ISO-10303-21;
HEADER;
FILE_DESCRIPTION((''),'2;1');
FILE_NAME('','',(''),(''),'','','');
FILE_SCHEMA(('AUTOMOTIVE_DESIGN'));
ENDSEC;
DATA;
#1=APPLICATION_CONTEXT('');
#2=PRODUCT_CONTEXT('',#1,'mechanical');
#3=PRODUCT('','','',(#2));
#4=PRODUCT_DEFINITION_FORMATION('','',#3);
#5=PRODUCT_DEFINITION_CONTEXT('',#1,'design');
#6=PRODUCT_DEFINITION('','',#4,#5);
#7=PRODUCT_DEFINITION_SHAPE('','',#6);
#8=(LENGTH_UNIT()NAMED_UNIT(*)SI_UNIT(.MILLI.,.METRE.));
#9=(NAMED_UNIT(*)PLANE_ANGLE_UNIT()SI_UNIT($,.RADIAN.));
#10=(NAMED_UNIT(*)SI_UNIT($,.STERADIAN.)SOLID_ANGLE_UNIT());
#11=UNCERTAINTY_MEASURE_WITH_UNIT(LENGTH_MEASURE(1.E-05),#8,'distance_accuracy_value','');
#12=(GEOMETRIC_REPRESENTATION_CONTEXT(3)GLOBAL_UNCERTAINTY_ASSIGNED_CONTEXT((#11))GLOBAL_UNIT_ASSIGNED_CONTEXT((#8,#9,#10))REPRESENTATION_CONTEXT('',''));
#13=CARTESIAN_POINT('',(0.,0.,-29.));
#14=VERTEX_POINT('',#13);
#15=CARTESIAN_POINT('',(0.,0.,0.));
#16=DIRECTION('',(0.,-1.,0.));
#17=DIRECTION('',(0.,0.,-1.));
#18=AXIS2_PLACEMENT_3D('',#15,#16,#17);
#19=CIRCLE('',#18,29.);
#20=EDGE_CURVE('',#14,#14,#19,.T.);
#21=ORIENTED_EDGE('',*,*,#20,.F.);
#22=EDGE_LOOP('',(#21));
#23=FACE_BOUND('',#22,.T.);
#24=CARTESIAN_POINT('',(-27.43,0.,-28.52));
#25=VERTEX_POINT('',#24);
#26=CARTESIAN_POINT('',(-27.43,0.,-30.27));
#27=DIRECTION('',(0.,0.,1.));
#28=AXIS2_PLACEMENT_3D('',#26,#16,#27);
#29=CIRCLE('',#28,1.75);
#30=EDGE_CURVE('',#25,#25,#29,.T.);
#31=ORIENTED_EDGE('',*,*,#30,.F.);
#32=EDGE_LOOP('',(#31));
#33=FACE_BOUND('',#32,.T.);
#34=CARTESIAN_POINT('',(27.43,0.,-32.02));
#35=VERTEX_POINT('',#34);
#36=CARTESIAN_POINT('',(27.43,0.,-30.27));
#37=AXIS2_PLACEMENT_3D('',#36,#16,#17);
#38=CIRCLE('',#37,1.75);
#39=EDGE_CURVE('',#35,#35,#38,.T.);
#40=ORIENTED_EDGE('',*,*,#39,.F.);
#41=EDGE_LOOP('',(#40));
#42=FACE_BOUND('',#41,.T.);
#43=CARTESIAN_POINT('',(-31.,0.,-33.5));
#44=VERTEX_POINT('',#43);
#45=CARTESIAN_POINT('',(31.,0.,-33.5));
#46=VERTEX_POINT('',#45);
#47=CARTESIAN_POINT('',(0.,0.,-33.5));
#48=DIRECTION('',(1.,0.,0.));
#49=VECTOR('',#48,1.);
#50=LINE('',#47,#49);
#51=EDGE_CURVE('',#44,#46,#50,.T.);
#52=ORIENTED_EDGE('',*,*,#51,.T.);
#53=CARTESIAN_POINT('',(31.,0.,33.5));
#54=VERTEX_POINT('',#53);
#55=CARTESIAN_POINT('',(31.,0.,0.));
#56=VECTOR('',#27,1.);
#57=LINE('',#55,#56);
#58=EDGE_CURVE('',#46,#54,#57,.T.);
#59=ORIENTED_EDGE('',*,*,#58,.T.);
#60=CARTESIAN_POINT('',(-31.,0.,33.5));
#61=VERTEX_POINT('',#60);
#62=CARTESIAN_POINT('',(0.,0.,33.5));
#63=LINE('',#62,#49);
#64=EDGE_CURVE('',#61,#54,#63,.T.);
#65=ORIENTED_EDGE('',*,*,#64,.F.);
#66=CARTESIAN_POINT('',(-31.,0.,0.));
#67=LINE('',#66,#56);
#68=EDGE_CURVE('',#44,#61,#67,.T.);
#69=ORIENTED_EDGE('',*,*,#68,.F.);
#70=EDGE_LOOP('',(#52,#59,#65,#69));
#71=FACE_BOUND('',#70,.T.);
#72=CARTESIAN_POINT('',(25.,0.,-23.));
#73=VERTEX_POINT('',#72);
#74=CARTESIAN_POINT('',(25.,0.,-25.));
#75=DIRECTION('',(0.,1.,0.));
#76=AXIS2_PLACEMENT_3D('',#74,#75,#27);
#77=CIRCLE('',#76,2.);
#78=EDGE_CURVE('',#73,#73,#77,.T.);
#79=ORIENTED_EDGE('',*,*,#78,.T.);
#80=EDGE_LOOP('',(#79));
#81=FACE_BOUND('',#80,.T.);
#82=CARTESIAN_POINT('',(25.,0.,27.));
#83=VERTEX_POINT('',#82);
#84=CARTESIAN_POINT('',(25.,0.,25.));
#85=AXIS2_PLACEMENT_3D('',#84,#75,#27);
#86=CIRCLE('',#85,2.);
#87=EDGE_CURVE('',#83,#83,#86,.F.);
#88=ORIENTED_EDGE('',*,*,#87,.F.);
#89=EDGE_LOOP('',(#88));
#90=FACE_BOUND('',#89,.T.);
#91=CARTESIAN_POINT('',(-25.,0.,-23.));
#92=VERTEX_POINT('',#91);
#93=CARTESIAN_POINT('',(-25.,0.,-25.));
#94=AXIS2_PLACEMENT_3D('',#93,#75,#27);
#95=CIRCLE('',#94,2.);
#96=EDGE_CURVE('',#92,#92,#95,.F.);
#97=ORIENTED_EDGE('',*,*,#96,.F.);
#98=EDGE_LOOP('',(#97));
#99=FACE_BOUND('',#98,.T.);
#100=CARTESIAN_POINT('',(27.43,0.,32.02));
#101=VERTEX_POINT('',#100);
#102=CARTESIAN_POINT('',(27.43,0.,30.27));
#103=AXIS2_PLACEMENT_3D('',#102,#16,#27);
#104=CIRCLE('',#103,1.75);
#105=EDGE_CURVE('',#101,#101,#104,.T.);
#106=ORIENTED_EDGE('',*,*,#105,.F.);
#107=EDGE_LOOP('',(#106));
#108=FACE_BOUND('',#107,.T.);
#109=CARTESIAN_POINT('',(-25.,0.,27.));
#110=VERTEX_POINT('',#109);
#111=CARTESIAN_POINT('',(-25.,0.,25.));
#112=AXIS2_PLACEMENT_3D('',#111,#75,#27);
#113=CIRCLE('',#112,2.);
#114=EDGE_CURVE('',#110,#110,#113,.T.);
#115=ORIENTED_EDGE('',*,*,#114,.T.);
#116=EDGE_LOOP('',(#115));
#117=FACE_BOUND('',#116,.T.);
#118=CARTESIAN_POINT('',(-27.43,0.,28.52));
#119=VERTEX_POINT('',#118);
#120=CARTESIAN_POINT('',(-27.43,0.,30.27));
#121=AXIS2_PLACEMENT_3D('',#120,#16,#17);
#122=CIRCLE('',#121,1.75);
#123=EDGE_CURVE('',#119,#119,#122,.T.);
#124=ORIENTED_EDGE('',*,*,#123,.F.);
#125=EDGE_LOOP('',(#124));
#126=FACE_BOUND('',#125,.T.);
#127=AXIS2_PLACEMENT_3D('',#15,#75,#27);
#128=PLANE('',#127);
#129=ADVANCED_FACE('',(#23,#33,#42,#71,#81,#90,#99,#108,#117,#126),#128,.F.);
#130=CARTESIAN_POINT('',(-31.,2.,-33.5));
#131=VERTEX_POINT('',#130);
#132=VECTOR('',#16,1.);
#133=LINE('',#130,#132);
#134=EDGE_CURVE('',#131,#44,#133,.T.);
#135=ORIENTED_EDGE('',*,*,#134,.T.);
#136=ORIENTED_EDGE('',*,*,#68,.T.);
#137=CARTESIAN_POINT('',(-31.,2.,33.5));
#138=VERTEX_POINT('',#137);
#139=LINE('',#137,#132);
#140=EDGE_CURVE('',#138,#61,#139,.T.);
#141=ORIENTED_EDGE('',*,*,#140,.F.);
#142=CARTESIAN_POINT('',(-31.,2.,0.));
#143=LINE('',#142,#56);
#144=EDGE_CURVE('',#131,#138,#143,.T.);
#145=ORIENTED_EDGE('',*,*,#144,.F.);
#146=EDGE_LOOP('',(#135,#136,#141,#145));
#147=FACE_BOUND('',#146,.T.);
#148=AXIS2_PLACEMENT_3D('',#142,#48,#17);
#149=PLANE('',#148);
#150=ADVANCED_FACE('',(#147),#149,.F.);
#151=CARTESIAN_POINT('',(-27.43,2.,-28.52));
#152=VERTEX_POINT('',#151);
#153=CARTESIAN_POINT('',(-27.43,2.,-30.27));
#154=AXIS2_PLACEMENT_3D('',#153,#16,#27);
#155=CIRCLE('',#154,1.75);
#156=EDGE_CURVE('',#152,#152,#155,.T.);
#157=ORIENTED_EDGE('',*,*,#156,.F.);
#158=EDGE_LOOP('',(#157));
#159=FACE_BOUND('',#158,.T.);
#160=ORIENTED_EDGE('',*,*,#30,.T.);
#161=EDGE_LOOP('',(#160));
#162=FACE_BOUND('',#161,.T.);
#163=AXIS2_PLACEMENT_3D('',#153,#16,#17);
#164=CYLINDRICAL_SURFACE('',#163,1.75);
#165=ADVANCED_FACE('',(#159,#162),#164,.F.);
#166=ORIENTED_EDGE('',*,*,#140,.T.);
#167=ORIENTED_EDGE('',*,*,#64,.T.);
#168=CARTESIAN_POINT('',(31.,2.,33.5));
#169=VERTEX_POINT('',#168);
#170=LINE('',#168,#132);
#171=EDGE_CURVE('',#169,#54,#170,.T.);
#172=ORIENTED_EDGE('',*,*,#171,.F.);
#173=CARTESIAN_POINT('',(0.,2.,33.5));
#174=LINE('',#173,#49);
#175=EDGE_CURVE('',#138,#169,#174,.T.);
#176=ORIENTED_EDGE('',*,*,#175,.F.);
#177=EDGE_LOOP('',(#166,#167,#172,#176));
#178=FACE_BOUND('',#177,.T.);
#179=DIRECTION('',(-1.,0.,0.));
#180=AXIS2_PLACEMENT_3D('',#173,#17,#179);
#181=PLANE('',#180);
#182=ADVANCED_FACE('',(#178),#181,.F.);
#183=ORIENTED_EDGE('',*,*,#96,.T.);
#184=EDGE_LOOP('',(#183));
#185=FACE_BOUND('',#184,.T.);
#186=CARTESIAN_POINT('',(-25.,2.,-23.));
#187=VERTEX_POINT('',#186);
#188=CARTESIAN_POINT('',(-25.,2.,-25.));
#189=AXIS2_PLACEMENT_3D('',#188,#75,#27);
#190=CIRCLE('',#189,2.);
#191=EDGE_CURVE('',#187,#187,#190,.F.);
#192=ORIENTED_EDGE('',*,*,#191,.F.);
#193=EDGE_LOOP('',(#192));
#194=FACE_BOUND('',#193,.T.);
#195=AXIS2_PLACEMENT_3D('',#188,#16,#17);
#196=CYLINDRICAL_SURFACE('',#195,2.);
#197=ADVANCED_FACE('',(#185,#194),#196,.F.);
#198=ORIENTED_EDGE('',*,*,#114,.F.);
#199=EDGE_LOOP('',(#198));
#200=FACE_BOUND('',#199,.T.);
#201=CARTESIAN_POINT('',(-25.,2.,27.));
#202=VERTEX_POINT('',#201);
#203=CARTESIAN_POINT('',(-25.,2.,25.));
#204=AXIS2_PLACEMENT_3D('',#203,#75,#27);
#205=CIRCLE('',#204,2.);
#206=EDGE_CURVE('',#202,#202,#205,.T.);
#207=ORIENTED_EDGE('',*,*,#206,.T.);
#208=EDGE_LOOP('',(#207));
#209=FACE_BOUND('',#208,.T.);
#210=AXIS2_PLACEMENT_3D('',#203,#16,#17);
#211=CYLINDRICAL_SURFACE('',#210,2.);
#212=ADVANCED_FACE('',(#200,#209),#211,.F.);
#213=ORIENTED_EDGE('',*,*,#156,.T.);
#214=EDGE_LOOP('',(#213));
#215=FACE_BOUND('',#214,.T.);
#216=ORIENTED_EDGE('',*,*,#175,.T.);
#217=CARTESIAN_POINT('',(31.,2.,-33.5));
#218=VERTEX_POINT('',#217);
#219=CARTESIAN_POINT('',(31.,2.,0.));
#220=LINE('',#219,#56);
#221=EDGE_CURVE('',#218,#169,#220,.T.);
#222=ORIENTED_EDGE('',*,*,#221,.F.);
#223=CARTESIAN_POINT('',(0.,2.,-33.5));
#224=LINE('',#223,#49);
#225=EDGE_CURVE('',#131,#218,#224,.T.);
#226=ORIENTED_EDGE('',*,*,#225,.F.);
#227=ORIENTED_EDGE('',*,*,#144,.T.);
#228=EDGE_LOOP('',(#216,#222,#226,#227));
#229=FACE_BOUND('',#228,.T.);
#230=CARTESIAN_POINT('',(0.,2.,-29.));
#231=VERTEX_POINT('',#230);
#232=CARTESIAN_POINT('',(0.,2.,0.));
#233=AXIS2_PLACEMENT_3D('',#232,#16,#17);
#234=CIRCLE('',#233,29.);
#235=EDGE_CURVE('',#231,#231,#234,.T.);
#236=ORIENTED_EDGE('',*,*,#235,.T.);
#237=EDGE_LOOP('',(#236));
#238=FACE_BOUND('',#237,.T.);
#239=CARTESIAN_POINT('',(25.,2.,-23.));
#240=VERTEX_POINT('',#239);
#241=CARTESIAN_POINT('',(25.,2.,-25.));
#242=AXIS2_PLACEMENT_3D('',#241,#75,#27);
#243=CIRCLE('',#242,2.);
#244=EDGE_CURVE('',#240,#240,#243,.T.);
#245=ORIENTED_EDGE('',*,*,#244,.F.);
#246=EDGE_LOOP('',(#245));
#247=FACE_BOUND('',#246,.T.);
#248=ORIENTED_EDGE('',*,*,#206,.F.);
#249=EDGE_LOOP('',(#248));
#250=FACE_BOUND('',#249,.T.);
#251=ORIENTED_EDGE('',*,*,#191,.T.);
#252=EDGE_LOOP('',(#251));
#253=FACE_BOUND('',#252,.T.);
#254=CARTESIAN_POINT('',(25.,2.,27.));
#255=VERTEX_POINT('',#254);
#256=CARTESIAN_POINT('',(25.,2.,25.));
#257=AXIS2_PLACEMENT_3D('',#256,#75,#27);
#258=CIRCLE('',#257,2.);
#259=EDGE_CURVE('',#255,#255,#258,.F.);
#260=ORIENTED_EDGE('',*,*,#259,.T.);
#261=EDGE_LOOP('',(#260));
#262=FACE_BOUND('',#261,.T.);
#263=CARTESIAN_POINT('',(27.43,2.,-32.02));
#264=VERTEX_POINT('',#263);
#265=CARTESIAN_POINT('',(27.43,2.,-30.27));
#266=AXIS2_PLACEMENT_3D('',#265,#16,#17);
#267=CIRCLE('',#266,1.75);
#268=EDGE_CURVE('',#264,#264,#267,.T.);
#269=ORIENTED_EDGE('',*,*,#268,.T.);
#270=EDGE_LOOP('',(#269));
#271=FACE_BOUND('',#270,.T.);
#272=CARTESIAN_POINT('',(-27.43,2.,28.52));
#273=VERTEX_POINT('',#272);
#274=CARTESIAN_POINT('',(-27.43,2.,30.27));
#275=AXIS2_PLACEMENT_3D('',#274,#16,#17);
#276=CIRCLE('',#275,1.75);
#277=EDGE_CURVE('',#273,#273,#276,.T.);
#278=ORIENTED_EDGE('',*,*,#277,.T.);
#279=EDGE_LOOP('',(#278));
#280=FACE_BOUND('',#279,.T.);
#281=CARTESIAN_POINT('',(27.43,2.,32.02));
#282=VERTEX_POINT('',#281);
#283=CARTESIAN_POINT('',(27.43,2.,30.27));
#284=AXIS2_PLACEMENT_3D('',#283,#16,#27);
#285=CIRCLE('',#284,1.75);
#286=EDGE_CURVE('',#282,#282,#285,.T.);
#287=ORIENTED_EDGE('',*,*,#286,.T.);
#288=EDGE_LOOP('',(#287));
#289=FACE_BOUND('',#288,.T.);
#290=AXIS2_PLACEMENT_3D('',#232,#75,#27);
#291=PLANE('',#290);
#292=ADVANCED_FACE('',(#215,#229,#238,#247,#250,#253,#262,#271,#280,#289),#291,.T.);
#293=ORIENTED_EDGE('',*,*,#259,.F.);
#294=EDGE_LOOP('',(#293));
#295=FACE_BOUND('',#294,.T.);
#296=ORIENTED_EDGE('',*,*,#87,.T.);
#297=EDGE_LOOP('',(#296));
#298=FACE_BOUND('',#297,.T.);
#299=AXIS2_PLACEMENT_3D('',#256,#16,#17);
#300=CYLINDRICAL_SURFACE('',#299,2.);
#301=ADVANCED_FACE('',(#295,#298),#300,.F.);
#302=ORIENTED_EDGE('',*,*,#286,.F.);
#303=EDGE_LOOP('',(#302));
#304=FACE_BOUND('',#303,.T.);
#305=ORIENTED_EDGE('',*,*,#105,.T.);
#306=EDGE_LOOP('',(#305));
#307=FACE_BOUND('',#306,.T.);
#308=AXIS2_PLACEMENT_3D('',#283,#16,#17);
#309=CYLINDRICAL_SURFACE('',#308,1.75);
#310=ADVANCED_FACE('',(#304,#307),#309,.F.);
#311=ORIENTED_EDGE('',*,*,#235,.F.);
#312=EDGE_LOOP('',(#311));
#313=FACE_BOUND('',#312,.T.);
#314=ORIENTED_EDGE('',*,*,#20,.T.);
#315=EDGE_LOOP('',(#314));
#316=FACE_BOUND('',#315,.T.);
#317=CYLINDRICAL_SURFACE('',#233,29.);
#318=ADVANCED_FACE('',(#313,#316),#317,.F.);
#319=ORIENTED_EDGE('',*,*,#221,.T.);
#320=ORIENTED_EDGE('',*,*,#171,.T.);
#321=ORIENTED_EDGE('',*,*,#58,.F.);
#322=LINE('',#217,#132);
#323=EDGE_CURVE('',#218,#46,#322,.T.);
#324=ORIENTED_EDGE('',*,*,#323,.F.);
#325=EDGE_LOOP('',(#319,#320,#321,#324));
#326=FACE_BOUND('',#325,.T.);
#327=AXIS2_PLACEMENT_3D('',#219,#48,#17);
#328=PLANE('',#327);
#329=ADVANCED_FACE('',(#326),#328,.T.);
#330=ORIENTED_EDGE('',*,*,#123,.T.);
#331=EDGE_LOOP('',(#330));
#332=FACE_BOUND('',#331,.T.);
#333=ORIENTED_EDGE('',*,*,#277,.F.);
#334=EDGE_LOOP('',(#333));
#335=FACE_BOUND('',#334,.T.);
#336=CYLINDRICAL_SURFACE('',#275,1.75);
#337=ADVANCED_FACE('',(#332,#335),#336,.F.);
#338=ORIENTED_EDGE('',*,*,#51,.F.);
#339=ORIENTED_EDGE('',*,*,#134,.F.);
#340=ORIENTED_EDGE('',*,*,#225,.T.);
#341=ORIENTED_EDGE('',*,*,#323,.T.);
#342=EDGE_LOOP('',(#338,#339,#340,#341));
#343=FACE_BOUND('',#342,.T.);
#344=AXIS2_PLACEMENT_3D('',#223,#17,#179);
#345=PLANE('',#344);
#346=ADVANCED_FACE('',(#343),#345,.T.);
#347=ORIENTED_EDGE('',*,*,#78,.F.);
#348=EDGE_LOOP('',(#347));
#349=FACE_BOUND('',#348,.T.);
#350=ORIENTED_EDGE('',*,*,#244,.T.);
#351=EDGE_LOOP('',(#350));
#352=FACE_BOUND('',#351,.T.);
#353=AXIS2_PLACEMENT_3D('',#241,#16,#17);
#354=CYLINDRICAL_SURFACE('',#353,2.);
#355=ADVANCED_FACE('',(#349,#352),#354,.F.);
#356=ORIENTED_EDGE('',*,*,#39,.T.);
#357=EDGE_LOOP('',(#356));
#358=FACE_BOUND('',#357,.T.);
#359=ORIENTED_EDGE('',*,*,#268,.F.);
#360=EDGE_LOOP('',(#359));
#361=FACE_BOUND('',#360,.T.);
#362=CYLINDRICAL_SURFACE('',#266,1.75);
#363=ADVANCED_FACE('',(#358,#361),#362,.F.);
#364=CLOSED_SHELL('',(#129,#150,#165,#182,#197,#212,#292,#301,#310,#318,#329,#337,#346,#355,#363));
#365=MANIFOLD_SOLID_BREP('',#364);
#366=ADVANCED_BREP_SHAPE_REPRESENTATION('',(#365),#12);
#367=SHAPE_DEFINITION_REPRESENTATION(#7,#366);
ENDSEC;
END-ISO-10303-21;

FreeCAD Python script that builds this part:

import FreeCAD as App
import Part
import Sketcher

V = App.Vector
Q = App.Units.Quantity


def add_polygon(sketch, points):
    """Adds a closed chain of lines whose ends are joined by coincident constraints."""
    first, n = sketch.GeometryCount, len(points)
    for a, b in zip(points, points[1:] + points[:1]):
        sketch.addGeometry(Part.LineSegment(App.Vector(*a, 0), App.Vector(*b, 0)), False)
    for i in range(n):
        sketch.addConstraint(Sketcher.Constraint("Coincident", first + i, 2, first + (i + 1) % n, 1))

doc = App.newDocument("Part")
body = doc.addObject("PartDesign::Body", "Body")

sketch1 = body.newObject("Sketcher::SketchObject", "Sketch")
sketch1.AttachmentSupport = (doc.getObject("XZ_Plane"), [""])
sketch1.MapMode = "FlatFace"
add_polygon(sketch1, [(-31, -33.5), (-31, 33.5), (31, 33.5), (31, -33.5)])
sketch1.addGeometry(Part.Circle(V(-25, 25, 0), V(0, 0, 1), 2), False)
sketch1.addGeometry(Part.Circle(V(25, 25, 0), V(0, 0, 1), 2), False)
sketch1.addGeometry(Part.Circle(V(-25, -25, 0), V(0, 0, 1), 2), False)
sketch1.addGeometry(Part.Circle(V(25, -25, 0), V(0, 0, 1), 2), False)
sketch1.addConstraint([
    Sketcher.Constraint("Vertical", 0),
    Sketcher.Constraint("Horizontal", 1),
    Sketcher.Constraint("Vertical", 2),
    Sketcher.Constraint("Horizontal", 3),
    Sketcher.Constraint("Equal", 4, 5),
    Sketcher.Constraint("Equal", 5, 6),
    Sketcher.Constraint("Equal", 6, 7),
    Sketcher.Constraint("Symmetric", 5, 3, 6, 3, -1, 1),
    Sketcher.Constraint("Symmetric", 4, 3, 7, 3, -1, 1),
    Sketcher.Constraint("Symmetric", 0, 2, 2, 2, -1, 1),
    Sketcher.Constraint("Symmetric", 4, 3, 5, 3, -2),
    Sketcher.Constraint("Diameter", 4, Q("4 mm")),
    Sketcher.Constraint("DistanceX", 1, 1, 1, 2, Q("62 mm")),
    Sketcher.Constraint("DistanceY", 0, 1, 0, 2, Q("67 mm")),
    Sketcher.Constraint("DistanceX", 4, 3, -1, 1, Q("25 mm")),
    Sketcher.Constraint("DistanceY", -1, 1, 4, 3, Q("25 mm")),
])
pad1 = body.newObject("PartDesign::Pad", "Pad")
pad1.Profile = sketch1
pad1.Length = 2
pad1.Reversed = True

sketch2 = body.newObject("Sketcher::SketchObject", "Sketch001")
sketch2.AttachmentSupport = (doc.getObject("XZ_Plane"), [""])
sketch2.MapMode = "FlatFace"
sketch2.addGeometry(Part.Circle(V(0, 0, 0), V(0, 0, 1), 29), False)
sketch2.addConstraint([
    Sketcher.Constraint("Coincident", 0, 3, -1, 1),
    Sketcher.Constraint("Diameter", 0, Q("58 mm")),
])
pocket1 = body.newObject("PartDesign::Pocket", "Pocket")
pocket1.Profile = sketch2
pocket1.Length = 2

sketch3 = body.newObject("Sketcher::SketchObject", "Sketch002")
sketch3.AttachmentSupport = (doc.getObject("XZ_Plane"), [""])
sketch3.MapMode = "FlatFace"
sketch3.addGeometry([
    Part.Circle(V(-27.4, 30.3, 0), V(0, 0, 1), 1.8),
    Part.Circle(V(-27.4, -30.3, 0), V(0, 0, 1), 1.8),
    Part.Circle(V(27.4, -30.3, 0), V(0, 0, 1), 1.8),
    Part.Circle(V(27.4, 30.3, 0), V(0, 0, 1), 1.8),
], False)
sketch3.addConstraint([
    Sketcher.Constraint("Equal", 0, 1),
    Sketcher.Constraint("Equal", 1, 2),
    Sketcher.Constraint("Equal", 2, 3),
    Sketcher.Constraint("Symmetric", 0, 3, 2, 3, -1, 1),
    Sketcher.Constraint("Symmetric", 1, 3, 3, 3, -1, 1),
    Sketcher.Constraint("Symmetric", 1, 3, 2, 3, -2),
    Sketcher.Constraint("Diameter", 0, Q("3.5 mm")),
    Sketcher.Constraint("DistanceX", 0, 3, -1, 1, Q("27.43 mm")),
    Sketcher.Constraint("DistanceY", -1, 1, 0, 3, Q("30.27 mm")),
])
pocket2 = body.newObject("PartDesign::Pocket", "Pocket001")
pocket2.Profile = sketch3
pocket2.Length = 2

doc.recompute()
